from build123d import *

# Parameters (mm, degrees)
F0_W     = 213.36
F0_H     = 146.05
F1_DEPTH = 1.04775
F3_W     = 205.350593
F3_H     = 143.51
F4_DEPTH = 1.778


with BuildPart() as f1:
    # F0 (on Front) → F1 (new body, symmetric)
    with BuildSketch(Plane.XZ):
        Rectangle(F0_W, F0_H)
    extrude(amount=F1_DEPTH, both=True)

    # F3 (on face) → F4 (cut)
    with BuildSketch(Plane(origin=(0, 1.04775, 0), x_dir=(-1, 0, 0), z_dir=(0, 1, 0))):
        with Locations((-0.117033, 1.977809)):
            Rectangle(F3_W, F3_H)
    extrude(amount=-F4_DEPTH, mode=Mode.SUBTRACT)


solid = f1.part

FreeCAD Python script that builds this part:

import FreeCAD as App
import Part
import Sketcher
Q = App.Units.Quantity


def add_polygon(sketch, points):
    """Adds a closed chain of lines whose ends are joined by coincident constraints."""
    first, n = sketch.GeometryCount, len(points)
    for a, b in zip(points, points[1:] + points[:1]):
        sketch.addGeometry(Part.LineSegment(App.Vector(*a, 0), App.Vector(*b, 0)), False)
    for i in range(n):
        sketch.addConstraint(Sketcher.Constraint("Coincident", first + i, 2, first + (i + 1) % n, 1))

doc = App.newDocument("Part")
body = doc.addObject("PartDesign::Body", "Body")

# Sketch on XZ plane
sketch1 = body.newObject("Sketcher::SketchObject", "Sketch")
sketch1.AttachmentSupport = (doc.getObject("XZ_Plane"), [""])
sketch1.MapMode = "FlatFace"
add_polygon(sketch1, [(-107, 73), (-107, -73), (107, -73), (107, 73)])  # lines 0-3
sketch1.addConstraint([
    Sketcher.Constraint("Vertical", 0),
    Sketcher.Constraint("Horizontal", 1),
    Sketcher.Constraint("Vertical", 2),
    Sketcher.Constraint("Horizontal", 3),
    Sketcher.Constraint("Symmetric", 0, 2, 2, 2, -1, 1),
    Sketcher.Constraint("DistanceX", 1, 1, 1, 2, Q("8.4 in")),
    Sketcher.Constraint("DistanceY", 0, 2, 0, 1, Q("5.75 in")),
])
pad1 = body.newObject("PartDesign::Pad", "Pad")
pad1.Profile = sketch1
pad1.Length = Q("0.0825 in")
pad1.Midplane = True

# Sketch on XZ plane
sketch2 = body.newObject("Sketcher::SketchObject", "Sketch001")
sketch2.AttachmentSupport = (doc.getObject("XZ_Plane"), [""])
sketch2.MapMode = "FlatFace"
sketch2.AttachmentOffset = App.Placement(App.Vector(0, 0, -1.04775), App.Rotation())
add_polygon(sketch2, [(103, 74), (103, -70), (-103, -70), (-103, 74)])  # lines 0-3
sketch2.addConstraint([
    Sketcher.Constraint("Vertical", 0),
    Sketcher.Constraint("Horizontal", 1),
    Sketcher.Constraint("Vertical", 2),
    Sketcher.Constraint("Horizontal", 3),
    Sketcher.Constraint("DistanceY", 0, 2, 0, 1, Q("5.65 in")),
    Sketcher.Constraint("DistanceX", 1, 2, 1, 1, 205.350593),
    Sketcher.Constraint("DistanceX", -1, 1, 0, 2, 102.792329),
    Sketcher.Constraint("DistanceY", 0, 2, -1, 1, 69.777191),
])
pocket1 = body.newObject("PartDesign::Pocket", "Pocket")
pocket1.Profile = sketch2
pocket1.Length = Q("0.07 in")
pocket1.Reversed = True

doc.recompute()
